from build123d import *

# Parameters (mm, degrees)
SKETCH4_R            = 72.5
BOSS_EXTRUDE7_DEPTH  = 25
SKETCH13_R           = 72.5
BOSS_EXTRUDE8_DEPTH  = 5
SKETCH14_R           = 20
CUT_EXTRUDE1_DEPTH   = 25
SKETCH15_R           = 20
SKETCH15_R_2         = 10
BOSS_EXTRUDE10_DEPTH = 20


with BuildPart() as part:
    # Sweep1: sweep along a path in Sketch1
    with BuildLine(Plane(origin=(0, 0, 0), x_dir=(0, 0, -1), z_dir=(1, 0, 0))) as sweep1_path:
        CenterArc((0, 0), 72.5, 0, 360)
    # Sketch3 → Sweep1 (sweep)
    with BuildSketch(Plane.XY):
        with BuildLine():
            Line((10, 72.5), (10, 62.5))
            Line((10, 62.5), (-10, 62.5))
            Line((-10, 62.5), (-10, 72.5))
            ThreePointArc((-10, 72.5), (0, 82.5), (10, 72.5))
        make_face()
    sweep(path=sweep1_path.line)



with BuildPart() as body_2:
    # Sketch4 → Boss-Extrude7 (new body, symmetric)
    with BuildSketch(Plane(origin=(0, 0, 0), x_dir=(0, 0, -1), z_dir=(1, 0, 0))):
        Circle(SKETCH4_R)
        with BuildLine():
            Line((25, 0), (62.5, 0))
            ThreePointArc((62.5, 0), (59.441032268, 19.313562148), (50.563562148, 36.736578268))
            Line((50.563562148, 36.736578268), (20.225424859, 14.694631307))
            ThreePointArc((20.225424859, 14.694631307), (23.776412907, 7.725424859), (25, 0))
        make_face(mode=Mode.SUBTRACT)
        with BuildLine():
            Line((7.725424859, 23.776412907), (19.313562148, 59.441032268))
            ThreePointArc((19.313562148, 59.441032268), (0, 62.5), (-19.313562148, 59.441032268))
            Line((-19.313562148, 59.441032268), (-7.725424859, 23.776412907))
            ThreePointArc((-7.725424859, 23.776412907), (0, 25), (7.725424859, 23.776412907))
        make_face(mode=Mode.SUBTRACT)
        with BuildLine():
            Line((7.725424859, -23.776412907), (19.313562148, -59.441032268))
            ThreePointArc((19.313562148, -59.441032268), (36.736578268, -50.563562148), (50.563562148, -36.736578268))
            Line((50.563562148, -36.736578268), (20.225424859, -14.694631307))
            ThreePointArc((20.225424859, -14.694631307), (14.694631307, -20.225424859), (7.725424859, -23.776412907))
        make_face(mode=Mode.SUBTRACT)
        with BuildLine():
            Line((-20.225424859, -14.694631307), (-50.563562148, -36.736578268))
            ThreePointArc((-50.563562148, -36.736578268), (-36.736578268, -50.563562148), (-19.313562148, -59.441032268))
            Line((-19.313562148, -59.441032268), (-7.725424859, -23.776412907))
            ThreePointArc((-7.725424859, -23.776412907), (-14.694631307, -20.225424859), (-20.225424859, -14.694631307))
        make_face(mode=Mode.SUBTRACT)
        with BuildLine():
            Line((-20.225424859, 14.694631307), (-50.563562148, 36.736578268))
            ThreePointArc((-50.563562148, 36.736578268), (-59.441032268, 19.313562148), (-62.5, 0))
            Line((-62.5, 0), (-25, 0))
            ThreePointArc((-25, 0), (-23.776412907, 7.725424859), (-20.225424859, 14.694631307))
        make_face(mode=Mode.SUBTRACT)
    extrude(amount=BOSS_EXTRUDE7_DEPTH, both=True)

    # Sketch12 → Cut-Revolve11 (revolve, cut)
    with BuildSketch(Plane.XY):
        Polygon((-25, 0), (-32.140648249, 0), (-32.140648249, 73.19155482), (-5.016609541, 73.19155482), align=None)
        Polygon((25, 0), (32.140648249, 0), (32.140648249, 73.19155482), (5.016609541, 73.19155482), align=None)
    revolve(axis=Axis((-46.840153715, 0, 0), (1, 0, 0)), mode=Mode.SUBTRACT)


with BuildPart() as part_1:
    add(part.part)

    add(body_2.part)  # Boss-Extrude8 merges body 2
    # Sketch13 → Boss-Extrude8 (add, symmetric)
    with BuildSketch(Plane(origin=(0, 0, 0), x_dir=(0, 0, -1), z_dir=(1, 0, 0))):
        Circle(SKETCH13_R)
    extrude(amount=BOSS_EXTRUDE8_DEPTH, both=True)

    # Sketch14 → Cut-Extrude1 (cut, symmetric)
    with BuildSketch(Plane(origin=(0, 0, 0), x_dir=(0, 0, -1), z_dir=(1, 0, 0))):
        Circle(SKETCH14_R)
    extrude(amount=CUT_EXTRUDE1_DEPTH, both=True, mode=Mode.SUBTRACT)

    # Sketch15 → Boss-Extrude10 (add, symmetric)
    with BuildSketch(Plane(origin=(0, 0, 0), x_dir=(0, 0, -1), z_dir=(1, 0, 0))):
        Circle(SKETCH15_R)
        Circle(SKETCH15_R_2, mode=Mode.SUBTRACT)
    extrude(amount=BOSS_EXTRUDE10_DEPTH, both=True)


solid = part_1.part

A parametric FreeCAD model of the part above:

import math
import FreeCAD as App
import Part
import Sketcher

V = App.Vector
Q = App.Units.Quantity

doc = App.newDocument("Part")
body = doc.addObject("PartDesign::Body", "Body")

# Sketch on XY plane
sketch1 = body.newObject("Sketcher::SketchObject", "Sketch")
sketch1.AttachmentSupport = (doc.getObject("XY_Plane"), [""])
sketch1.MapMode = "FlatFace"
sketch1.addGeometry([
    Part.LineSegment(V(10, 62, 0), V(10, 72, 0)),
    Part.ArcOfCircle(Part.Circle(V(0, 72, 0), V(0, 0, 1), 10), math.radians(0), math.radians(180)),
    Part.LineSegment(V(-10, 72, 0), V(-10, 62, 0)),
    Part.LineSegment(V(-10, 62, 0), V(10, 62, 0)),
], False)
sketch1.addConstraint([
    Sketcher.Constraint("Tangent", 0, 2, 1, 1),
    Sketcher.Constraint("Tangent", 1, 2, 2, 1),
    Sketcher.Constraint("Coincident", 2, 2, 3, 1),
    Sketcher.Constraint("Coincident", 3, 2, 0, 1),
    Sketcher.Constraint("Vertical", 0),
    Sketcher.Constraint("Vertical", 2),
    Sketcher.Constraint("Horizontal", 3),
    Sketcher.Constraint("PointOnObject", 1, 3, -2),
    Sketcher.Constraint("Radius", 1, 10.0),
    Sketcher.Constraint("DistanceY", 0, 1, 0, 2, 10.0),
    Sketcher.Constraint("DistanceY", -1, 1, 1, 3, 72.5),
])

# Sketch on YZ plane
sketch2 = body.newObject("Sketcher::SketchObject", "Sketch001")
sketch2.AttachmentSupport = (doc.getObject("YZ_Plane"), [""])
sketch2.MapMode = "FlatFace"
sketch2.addGeometry(Part.Circle(V(0, 0, 0), V(0, 0, 1), 72), False)
sketch2.addConstraint([
    Sketcher.Constraint("Coincident", 0, 3, -1, 1),
    Sketcher.Constraint("Diameter", 0, 145.0),
])
doc.recompute()

additivepipe = body.newObject("PartDesign::AdditivePipe", "AdditivePipe")
additivepipe.Profile = sketch1
additivepipe.Spine = (sketch2, ["Edge1"])
body2 = doc.addObject("PartDesign::Body", "Body001")

# Sketch on YZ plane
sketch3 = body2.newObject("Sketcher::SketchObject", "Sketch002")
sketch3.AttachmentSupport = (doc.getObject("YZ_Plane001"), [""])
sketch3.MapMode = "FlatFace"
sketch3.addGeometry([
    Part.Circle(V(0, 0, 0), V(0, 0, 1), 72),  # 0
    Part.LineSegment(V(-37, 51, 0), V(-15, 20, 0)),  # 1
    Part.ArcOfCircle(Part.Circle(V(0, 0, 0), V(0, 0, 1), 25), math.radians(126), math.radians(162)),  # 2
    Part.LineSegment(V(-24, 8, 0), V(-59, 19, 0)),  # 3
    Part.ArcOfCircle(Part.Circle(V(0, 0, 0), V(0, 0, 1), 62), math.radians(126), math.radians(162)),  # 4
    Part.LineSegment(V(-59, -19, 0), V(-24, -8, 0)),  # 5
    Part.ArcOfCircle(Part.Circle(V(0, 0, 0), V(0, 0, 1), 25), math.radians(-162), math.radians(-126)),  # 6
    Part.LineSegment(V(-15, -20, 0), V(-37, -51, 0)),  # 7
    Part.ArcOfCircle(Part.Circle(V(0, 0, 0), V(0, 0, 1), 62), math.radians(-162), math.radians(-126)),  # 8
    Part.LineSegment(V(37, 51, 0), V(15, 20, 0)),  # 9
    Part.ArcOfCircle(Part.Circle(V(0, 0, 0), V(0, 0, 1), 25), math.radians(54), math.radians(90)),  # 10
    Part.LineSegment(V(0, 25, 0), V(0, 62, 0)),  # 11
    Part.ArcOfCircle(Part.Circle(V(0, 0, 0), V(0, 0, 1), 63), math.radians(54), math.radians(90)),  # 12
    Part.LineSegment(V(0, -62, 0), V(0, -25, 0)),  # 13
    Part.ArcOfCircle(Part.Circle(V(0, 0, 0), V(0, 0, 1), 25), math.radians(-90), math.radians(-54)),  # 14
    Part.LineSegment(V(15, -20, 0), V(37, -51, 0)),  # 15
    Part.ArcOfCircle(Part.Circle(V(0, 0, 0), V(0, 0, 1), 63), math.radians(-90), math.radians(-54)),  # 16
    Part.LineSegment(V(59, -19, 0), V(24, -8, 0)),  # 17
    Part.ArcOfCircle(Part.Circle(V(0, 0, 0), V(0, 0, 1), 25), math.radians(-18), math.radians(18)),  # 18
    Part.LineSegment(V(24, 8, 0), V(59, 19, 0)),  # 19
    Part.ArcOfCircle(Part.Circle(V(0, 0, 0), V(0, 0, 1), 62), math.radians(-18), math.radians(18)),  # 20
], False)
sketch3.addConstraint([
    Sketcher.Constraint("Coincident", 1, 2, 2, 1),
    Sketcher.Constraint("Coincident", 2, 2, 3, 1),
    Sketcher.Constraint("Coincident", 3, 2, 4, 2),
    Sketcher.Constraint("Coincident", 4, 1, 1, 1),
    Sketcher.Constraint("Coincident", 5, 2, 6, 1),
    Sketcher.Constraint("Coincident", 6, 2, 7, 1),
    Sketcher.Constraint("Coincident", 7, 2, 8, 2),
    Sketcher.Constraint("Coincident", 8, 1, 5, 1),
    Sketcher.Constraint("Coincident", 9, 2, 10, 1),
    Sketcher.Constraint("Coincident", 10, 2, 11, 1),
    Sketcher.Constraint("Coincident", 11, 2, 12, 2),
    Sketcher.Constraint("Coincident", 12, 1, 9, 1),
    Sketcher.Constraint("Coincident", 13, 2, 14, 1),
    Sketcher.Constraint("Coincident", 14, 2, 15, 1),
    Sketcher.Constraint("Coincident", 15, 2, 16, 2),
    Sketcher.Constraint("Coincident", 16, 1, 13, 1),
    Sketcher.Constraint("Coincident", 17, 2, 18, 1),
    Sketcher.Constraint("Coincident", 18, 2, 19, 1),
    Sketcher.Constraint("Coincident", 19, 2, 20, 2),
    Sketcher.Constraint("Coincident", 20, 1, 17, 1),
    Sketcher.Constraint("Vertical", 11),
    Sketcher.Constraint("Vertical", 13),
    Sketcher.Constraint("Coincident", 0, 3, -1, 1),
    Sketcher.Constraint("Coincident", 2, 3, -1, 1),
    Sketcher.Constraint("Coincident", 4, 3, -1, 1),
    Sketcher.Constraint("Coincident", 6, 3, -1, 1),
    Sketcher.Constraint("Coincident", 8, 3, -1, 1),
    Sketcher.Constraint("Coincident", 10, 3, -1, 1),
    Sketcher.Constraint("Coincident", 12, 3, -1, 1),
    Sketcher.Constraint("Coincident", 14, 3, -1, 1),
    Sketcher.Constraint("Coincident", 16, 3, -1, 1),
    Sketcher.Constraint("Coincident", 18, 3, -1, 1),
    Sketcher.Constraint("Coincident", 20, 3, -1, 1),
    Sketcher.Constraint("Equal", 2, 6),
    Sketcher.Constraint("Equal", 4, 8),
    Sketcher.Constraint("Equal", 6, 10),
    Sketcher.Constraint("Equal", 8, 12),
    Sketcher.Constraint("Equal", 10, 14),
    Sketcher.Constraint("Equal", 12, 16),
    Sketcher.Constraint("Equal", 14, 18),
    Sketcher.Constraint("Equal", 16, 20),
    Sketcher.Constraint("PointOnObject", 10, 2, -2),
    Sketcher.Constraint("PointOnObject", 13, 2, -2),
    Sketcher.Constraint("Parallel", 7, 9),
    Sketcher.Constraint("Parallel", 1, 15),
    Sketcher.Constraint("Parallel", 3, 17),
    Sketcher.Constraint("Parallel", 5, 19),
    Sketcher.Constraint("Horizontal", 1, 2, 9, 2),
    Sketcher.Constraint("Horizontal", 4, 1, 12, 1),
    Sketcher.Constraint("Horizontal", 6, 2, 14, 2),
    Sketcher.Constraint("Horizontal", 5, 2, 17, 2),
    Sketcher.Constraint("Horizontal", 2, 2, 18, 2),
    Sketcher.Constraint("Horizontal", 3, 2, 19, 2),
    Sketcher.Constraint("Vertical", 2, 2, 5, 2),
    Sketcher.Constraint("Vertical", 1, 2, 6, 2),
    Sketcher.Constraint("Diameter", 0, 145.0),
    Sketcher.Constraint("Radius", 2, 25.0),
    Sketcher.Constraint("Radius", 4, 62.5),
    Sketcher.Constraint("Angle", 1, Q("-54 deg")),
    Sketcher.Constraint("Angle", 3, Q("162 deg")),
    Sketcher.Constraint("DistanceY", 2, 2, 1, 2, 12.5),
    Sketcher.Constraint("DistanceX", 3, 2, 1, 2, 44.746401),
])
pad1 = body2.newObject("PartDesign::Pad", "Pad")
pad1.Profile = sketch3
pad1.Length = 50
pad1.Midplane = True

# Sketch on XY plane
sketch4 = body2.newObject("Sketcher::SketchObject", "Sketch003")
sketch4.AttachmentSupport = (doc.getObject("XY_Plane001"), [""])
sketch4.MapMode = "FlatFace"
sketch4.addGeometry([
    Part.LineSegment(V(-32, 0, 0), V(-25, 0, 0)),  # 0
    Part.LineSegment(V(-25, 0, 0), V(-5, 73, 0)),  # 1
    Part.LineSegment(V(-5, 73, 0), V(-32, 73, 0)),  # 2
    Part.LineSegment(V(-32, 73, 0), V(-32, 0, 0)),  # 3
    Part.LineSegment(V(25, 0, 0), V(32, 0, 0)),  # 4
    Part.LineSegment(V(32, 0, 0), V(32, 73, 0)),  # 5
    Part.LineSegment(V(32, 73, 0), V(5, 73, 0)),  # 6
    Part.LineSegment(V(5, 73, 0), V(25, 0, 0)),  # 7
], False)
sketch4.addConstraint([
    Sketcher.Constraint("Coincident", 0, 2, 1, 1),
    Sketcher.Constraint("Coincident", 1, 2, 2, 1),
    Sketcher.Constraint("Coincident", 2, 2, 3, 1),
    Sketcher.Constraint("Coincident", 3, 2, 0, 1),
    Sketcher.Constraint("Coincident", 4, 2, 5, 1),
    Sketcher.Constraint("Coincident", 5, 2, 6, 1),
    Sketcher.Constraint("Coincident", 6, 2, 7, 1),
    Sketcher.Constraint("Coincident", 7, 2, 4, 1),
    Sketcher.Constraint("Horizontal", 0),
    Sketcher.Constraint("Horizontal", 2),
    Sketcher.Constraint("Vertical", 3),
    Sketcher.Constraint("Horizontal", 4),
    Sketcher.Constraint("Vertical", 5),
    Sketcher.Constraint("Horizontal", 6),
    Sketcher.Constraint("Symmetric", 3, 2, 4, 2, -1, 1),
    Sketcher.Constraint("Symmetric", 1, 2, 6, 2, -2),
    Sketcher.Constraint("Symmetric", 0, 2, 7, 2, -2),
    Sketcher.Constraint("DistanceX", 0, 2, -1, 1, 25.0),
    Sketcher.Constraint("DistanceX", 0, 1, 0, 2, 7.140648),
    Sketcher.Constraint("DistanceX", 2, 2, 2, 1, 27.124039),
    Sketcher.Constraint("DistanceY", 3, 2, 3, 1, 73.191555),
])
groove = body2.newObject("PartDesign::Groove", "Groove")
groove.Profile = sketch4
groove.ReferenceAxis = (sketch4, ["H_Axis"])
groove.Angle = 360
doc.recompute()

boolean = body.newObject("PartDesign::Boolean", "Boolean")
boolean.Type = "Fuse"
boolean.addObjects([body2])

# Sketch on YZ plane
sketch5 = body.newObject("Sketcher::SketchObject", "Sketch004")
sketch5.AttachmentSupport = (doc.getObject("YZ_Plane"), [""])
sketch5.MapMode = "FlatFace"
sketch5.addGeometry(Part.Circle(V(0, 0, 0), V(0, 0, 1), 72), False)
sketch5.addConstraint([
    Sketcher.Constraint("Coincident", 0, 3, -1, 1),
    Sketcher.Constraint("Diameter", 0, 145.0),
])
pad2 = body.newObject("PartDesign::Pad", "Pad001")
pad2.Profile = sketch5
pad2.Length = 10
pad2.Midplane = True

# Sketch on YZ plane
sketch6 = body.newObject("Sketcher::SketchObject", "Sketch005")
sketch6.AttachmentSupport = (doc.getObject("YZ_Plane"), [""])
sketch6.MapMode = "FlatFace"
sketch6.addGeometry(Part.Circle(V(0, 0, 0), V(0, 0, 1), 20), False)
sketch6.addConstraint([
    Sketcher.Constraint("Coincident", 0, 3, -1, 1),
    Sketcher.Constraint("Diameter", 0, 40.0),
])
pocket1 = body.newObject("PartDesign::Pocket", "Pocket")
pocket1.Profile = sketch6
pocket1.Length = 50
pocket1.Midplane = True

# Sketch on YZ plane
sketch7 = body.newObject("Sketcher::SketchObject", "Sketch006")
sketch7.AttachmentSupport = (doc.getObject("YZ_Plane"), [""])
sketch7.MapMode = "FlatFace"
sketch7.addGeometry([
    Part.Circle(V(0, 0, 0), V(0, 0, 1), 20),
    Part.Circle(V(0, 0, 0), V(0, 0, 1), 10),
], False)
sketch7.addConstraint([
    Sketcher.Constraint("Coincident", 0, 3, -1, 1),
    Sketcher.Constraint("Coincident", 1, 3, -1, 1),
    Sketcher.Constraint("Diameter", 0, 40.0),
    Sketcher.Constraint("Diameter", 1, 20.0),
])
pad3 = body.newObject("PartDesign::Pad", "Pad002")
pad3.Profile = sketch7
pad3.Length = 40
pad3.Midplane = True

doc.recompute()
